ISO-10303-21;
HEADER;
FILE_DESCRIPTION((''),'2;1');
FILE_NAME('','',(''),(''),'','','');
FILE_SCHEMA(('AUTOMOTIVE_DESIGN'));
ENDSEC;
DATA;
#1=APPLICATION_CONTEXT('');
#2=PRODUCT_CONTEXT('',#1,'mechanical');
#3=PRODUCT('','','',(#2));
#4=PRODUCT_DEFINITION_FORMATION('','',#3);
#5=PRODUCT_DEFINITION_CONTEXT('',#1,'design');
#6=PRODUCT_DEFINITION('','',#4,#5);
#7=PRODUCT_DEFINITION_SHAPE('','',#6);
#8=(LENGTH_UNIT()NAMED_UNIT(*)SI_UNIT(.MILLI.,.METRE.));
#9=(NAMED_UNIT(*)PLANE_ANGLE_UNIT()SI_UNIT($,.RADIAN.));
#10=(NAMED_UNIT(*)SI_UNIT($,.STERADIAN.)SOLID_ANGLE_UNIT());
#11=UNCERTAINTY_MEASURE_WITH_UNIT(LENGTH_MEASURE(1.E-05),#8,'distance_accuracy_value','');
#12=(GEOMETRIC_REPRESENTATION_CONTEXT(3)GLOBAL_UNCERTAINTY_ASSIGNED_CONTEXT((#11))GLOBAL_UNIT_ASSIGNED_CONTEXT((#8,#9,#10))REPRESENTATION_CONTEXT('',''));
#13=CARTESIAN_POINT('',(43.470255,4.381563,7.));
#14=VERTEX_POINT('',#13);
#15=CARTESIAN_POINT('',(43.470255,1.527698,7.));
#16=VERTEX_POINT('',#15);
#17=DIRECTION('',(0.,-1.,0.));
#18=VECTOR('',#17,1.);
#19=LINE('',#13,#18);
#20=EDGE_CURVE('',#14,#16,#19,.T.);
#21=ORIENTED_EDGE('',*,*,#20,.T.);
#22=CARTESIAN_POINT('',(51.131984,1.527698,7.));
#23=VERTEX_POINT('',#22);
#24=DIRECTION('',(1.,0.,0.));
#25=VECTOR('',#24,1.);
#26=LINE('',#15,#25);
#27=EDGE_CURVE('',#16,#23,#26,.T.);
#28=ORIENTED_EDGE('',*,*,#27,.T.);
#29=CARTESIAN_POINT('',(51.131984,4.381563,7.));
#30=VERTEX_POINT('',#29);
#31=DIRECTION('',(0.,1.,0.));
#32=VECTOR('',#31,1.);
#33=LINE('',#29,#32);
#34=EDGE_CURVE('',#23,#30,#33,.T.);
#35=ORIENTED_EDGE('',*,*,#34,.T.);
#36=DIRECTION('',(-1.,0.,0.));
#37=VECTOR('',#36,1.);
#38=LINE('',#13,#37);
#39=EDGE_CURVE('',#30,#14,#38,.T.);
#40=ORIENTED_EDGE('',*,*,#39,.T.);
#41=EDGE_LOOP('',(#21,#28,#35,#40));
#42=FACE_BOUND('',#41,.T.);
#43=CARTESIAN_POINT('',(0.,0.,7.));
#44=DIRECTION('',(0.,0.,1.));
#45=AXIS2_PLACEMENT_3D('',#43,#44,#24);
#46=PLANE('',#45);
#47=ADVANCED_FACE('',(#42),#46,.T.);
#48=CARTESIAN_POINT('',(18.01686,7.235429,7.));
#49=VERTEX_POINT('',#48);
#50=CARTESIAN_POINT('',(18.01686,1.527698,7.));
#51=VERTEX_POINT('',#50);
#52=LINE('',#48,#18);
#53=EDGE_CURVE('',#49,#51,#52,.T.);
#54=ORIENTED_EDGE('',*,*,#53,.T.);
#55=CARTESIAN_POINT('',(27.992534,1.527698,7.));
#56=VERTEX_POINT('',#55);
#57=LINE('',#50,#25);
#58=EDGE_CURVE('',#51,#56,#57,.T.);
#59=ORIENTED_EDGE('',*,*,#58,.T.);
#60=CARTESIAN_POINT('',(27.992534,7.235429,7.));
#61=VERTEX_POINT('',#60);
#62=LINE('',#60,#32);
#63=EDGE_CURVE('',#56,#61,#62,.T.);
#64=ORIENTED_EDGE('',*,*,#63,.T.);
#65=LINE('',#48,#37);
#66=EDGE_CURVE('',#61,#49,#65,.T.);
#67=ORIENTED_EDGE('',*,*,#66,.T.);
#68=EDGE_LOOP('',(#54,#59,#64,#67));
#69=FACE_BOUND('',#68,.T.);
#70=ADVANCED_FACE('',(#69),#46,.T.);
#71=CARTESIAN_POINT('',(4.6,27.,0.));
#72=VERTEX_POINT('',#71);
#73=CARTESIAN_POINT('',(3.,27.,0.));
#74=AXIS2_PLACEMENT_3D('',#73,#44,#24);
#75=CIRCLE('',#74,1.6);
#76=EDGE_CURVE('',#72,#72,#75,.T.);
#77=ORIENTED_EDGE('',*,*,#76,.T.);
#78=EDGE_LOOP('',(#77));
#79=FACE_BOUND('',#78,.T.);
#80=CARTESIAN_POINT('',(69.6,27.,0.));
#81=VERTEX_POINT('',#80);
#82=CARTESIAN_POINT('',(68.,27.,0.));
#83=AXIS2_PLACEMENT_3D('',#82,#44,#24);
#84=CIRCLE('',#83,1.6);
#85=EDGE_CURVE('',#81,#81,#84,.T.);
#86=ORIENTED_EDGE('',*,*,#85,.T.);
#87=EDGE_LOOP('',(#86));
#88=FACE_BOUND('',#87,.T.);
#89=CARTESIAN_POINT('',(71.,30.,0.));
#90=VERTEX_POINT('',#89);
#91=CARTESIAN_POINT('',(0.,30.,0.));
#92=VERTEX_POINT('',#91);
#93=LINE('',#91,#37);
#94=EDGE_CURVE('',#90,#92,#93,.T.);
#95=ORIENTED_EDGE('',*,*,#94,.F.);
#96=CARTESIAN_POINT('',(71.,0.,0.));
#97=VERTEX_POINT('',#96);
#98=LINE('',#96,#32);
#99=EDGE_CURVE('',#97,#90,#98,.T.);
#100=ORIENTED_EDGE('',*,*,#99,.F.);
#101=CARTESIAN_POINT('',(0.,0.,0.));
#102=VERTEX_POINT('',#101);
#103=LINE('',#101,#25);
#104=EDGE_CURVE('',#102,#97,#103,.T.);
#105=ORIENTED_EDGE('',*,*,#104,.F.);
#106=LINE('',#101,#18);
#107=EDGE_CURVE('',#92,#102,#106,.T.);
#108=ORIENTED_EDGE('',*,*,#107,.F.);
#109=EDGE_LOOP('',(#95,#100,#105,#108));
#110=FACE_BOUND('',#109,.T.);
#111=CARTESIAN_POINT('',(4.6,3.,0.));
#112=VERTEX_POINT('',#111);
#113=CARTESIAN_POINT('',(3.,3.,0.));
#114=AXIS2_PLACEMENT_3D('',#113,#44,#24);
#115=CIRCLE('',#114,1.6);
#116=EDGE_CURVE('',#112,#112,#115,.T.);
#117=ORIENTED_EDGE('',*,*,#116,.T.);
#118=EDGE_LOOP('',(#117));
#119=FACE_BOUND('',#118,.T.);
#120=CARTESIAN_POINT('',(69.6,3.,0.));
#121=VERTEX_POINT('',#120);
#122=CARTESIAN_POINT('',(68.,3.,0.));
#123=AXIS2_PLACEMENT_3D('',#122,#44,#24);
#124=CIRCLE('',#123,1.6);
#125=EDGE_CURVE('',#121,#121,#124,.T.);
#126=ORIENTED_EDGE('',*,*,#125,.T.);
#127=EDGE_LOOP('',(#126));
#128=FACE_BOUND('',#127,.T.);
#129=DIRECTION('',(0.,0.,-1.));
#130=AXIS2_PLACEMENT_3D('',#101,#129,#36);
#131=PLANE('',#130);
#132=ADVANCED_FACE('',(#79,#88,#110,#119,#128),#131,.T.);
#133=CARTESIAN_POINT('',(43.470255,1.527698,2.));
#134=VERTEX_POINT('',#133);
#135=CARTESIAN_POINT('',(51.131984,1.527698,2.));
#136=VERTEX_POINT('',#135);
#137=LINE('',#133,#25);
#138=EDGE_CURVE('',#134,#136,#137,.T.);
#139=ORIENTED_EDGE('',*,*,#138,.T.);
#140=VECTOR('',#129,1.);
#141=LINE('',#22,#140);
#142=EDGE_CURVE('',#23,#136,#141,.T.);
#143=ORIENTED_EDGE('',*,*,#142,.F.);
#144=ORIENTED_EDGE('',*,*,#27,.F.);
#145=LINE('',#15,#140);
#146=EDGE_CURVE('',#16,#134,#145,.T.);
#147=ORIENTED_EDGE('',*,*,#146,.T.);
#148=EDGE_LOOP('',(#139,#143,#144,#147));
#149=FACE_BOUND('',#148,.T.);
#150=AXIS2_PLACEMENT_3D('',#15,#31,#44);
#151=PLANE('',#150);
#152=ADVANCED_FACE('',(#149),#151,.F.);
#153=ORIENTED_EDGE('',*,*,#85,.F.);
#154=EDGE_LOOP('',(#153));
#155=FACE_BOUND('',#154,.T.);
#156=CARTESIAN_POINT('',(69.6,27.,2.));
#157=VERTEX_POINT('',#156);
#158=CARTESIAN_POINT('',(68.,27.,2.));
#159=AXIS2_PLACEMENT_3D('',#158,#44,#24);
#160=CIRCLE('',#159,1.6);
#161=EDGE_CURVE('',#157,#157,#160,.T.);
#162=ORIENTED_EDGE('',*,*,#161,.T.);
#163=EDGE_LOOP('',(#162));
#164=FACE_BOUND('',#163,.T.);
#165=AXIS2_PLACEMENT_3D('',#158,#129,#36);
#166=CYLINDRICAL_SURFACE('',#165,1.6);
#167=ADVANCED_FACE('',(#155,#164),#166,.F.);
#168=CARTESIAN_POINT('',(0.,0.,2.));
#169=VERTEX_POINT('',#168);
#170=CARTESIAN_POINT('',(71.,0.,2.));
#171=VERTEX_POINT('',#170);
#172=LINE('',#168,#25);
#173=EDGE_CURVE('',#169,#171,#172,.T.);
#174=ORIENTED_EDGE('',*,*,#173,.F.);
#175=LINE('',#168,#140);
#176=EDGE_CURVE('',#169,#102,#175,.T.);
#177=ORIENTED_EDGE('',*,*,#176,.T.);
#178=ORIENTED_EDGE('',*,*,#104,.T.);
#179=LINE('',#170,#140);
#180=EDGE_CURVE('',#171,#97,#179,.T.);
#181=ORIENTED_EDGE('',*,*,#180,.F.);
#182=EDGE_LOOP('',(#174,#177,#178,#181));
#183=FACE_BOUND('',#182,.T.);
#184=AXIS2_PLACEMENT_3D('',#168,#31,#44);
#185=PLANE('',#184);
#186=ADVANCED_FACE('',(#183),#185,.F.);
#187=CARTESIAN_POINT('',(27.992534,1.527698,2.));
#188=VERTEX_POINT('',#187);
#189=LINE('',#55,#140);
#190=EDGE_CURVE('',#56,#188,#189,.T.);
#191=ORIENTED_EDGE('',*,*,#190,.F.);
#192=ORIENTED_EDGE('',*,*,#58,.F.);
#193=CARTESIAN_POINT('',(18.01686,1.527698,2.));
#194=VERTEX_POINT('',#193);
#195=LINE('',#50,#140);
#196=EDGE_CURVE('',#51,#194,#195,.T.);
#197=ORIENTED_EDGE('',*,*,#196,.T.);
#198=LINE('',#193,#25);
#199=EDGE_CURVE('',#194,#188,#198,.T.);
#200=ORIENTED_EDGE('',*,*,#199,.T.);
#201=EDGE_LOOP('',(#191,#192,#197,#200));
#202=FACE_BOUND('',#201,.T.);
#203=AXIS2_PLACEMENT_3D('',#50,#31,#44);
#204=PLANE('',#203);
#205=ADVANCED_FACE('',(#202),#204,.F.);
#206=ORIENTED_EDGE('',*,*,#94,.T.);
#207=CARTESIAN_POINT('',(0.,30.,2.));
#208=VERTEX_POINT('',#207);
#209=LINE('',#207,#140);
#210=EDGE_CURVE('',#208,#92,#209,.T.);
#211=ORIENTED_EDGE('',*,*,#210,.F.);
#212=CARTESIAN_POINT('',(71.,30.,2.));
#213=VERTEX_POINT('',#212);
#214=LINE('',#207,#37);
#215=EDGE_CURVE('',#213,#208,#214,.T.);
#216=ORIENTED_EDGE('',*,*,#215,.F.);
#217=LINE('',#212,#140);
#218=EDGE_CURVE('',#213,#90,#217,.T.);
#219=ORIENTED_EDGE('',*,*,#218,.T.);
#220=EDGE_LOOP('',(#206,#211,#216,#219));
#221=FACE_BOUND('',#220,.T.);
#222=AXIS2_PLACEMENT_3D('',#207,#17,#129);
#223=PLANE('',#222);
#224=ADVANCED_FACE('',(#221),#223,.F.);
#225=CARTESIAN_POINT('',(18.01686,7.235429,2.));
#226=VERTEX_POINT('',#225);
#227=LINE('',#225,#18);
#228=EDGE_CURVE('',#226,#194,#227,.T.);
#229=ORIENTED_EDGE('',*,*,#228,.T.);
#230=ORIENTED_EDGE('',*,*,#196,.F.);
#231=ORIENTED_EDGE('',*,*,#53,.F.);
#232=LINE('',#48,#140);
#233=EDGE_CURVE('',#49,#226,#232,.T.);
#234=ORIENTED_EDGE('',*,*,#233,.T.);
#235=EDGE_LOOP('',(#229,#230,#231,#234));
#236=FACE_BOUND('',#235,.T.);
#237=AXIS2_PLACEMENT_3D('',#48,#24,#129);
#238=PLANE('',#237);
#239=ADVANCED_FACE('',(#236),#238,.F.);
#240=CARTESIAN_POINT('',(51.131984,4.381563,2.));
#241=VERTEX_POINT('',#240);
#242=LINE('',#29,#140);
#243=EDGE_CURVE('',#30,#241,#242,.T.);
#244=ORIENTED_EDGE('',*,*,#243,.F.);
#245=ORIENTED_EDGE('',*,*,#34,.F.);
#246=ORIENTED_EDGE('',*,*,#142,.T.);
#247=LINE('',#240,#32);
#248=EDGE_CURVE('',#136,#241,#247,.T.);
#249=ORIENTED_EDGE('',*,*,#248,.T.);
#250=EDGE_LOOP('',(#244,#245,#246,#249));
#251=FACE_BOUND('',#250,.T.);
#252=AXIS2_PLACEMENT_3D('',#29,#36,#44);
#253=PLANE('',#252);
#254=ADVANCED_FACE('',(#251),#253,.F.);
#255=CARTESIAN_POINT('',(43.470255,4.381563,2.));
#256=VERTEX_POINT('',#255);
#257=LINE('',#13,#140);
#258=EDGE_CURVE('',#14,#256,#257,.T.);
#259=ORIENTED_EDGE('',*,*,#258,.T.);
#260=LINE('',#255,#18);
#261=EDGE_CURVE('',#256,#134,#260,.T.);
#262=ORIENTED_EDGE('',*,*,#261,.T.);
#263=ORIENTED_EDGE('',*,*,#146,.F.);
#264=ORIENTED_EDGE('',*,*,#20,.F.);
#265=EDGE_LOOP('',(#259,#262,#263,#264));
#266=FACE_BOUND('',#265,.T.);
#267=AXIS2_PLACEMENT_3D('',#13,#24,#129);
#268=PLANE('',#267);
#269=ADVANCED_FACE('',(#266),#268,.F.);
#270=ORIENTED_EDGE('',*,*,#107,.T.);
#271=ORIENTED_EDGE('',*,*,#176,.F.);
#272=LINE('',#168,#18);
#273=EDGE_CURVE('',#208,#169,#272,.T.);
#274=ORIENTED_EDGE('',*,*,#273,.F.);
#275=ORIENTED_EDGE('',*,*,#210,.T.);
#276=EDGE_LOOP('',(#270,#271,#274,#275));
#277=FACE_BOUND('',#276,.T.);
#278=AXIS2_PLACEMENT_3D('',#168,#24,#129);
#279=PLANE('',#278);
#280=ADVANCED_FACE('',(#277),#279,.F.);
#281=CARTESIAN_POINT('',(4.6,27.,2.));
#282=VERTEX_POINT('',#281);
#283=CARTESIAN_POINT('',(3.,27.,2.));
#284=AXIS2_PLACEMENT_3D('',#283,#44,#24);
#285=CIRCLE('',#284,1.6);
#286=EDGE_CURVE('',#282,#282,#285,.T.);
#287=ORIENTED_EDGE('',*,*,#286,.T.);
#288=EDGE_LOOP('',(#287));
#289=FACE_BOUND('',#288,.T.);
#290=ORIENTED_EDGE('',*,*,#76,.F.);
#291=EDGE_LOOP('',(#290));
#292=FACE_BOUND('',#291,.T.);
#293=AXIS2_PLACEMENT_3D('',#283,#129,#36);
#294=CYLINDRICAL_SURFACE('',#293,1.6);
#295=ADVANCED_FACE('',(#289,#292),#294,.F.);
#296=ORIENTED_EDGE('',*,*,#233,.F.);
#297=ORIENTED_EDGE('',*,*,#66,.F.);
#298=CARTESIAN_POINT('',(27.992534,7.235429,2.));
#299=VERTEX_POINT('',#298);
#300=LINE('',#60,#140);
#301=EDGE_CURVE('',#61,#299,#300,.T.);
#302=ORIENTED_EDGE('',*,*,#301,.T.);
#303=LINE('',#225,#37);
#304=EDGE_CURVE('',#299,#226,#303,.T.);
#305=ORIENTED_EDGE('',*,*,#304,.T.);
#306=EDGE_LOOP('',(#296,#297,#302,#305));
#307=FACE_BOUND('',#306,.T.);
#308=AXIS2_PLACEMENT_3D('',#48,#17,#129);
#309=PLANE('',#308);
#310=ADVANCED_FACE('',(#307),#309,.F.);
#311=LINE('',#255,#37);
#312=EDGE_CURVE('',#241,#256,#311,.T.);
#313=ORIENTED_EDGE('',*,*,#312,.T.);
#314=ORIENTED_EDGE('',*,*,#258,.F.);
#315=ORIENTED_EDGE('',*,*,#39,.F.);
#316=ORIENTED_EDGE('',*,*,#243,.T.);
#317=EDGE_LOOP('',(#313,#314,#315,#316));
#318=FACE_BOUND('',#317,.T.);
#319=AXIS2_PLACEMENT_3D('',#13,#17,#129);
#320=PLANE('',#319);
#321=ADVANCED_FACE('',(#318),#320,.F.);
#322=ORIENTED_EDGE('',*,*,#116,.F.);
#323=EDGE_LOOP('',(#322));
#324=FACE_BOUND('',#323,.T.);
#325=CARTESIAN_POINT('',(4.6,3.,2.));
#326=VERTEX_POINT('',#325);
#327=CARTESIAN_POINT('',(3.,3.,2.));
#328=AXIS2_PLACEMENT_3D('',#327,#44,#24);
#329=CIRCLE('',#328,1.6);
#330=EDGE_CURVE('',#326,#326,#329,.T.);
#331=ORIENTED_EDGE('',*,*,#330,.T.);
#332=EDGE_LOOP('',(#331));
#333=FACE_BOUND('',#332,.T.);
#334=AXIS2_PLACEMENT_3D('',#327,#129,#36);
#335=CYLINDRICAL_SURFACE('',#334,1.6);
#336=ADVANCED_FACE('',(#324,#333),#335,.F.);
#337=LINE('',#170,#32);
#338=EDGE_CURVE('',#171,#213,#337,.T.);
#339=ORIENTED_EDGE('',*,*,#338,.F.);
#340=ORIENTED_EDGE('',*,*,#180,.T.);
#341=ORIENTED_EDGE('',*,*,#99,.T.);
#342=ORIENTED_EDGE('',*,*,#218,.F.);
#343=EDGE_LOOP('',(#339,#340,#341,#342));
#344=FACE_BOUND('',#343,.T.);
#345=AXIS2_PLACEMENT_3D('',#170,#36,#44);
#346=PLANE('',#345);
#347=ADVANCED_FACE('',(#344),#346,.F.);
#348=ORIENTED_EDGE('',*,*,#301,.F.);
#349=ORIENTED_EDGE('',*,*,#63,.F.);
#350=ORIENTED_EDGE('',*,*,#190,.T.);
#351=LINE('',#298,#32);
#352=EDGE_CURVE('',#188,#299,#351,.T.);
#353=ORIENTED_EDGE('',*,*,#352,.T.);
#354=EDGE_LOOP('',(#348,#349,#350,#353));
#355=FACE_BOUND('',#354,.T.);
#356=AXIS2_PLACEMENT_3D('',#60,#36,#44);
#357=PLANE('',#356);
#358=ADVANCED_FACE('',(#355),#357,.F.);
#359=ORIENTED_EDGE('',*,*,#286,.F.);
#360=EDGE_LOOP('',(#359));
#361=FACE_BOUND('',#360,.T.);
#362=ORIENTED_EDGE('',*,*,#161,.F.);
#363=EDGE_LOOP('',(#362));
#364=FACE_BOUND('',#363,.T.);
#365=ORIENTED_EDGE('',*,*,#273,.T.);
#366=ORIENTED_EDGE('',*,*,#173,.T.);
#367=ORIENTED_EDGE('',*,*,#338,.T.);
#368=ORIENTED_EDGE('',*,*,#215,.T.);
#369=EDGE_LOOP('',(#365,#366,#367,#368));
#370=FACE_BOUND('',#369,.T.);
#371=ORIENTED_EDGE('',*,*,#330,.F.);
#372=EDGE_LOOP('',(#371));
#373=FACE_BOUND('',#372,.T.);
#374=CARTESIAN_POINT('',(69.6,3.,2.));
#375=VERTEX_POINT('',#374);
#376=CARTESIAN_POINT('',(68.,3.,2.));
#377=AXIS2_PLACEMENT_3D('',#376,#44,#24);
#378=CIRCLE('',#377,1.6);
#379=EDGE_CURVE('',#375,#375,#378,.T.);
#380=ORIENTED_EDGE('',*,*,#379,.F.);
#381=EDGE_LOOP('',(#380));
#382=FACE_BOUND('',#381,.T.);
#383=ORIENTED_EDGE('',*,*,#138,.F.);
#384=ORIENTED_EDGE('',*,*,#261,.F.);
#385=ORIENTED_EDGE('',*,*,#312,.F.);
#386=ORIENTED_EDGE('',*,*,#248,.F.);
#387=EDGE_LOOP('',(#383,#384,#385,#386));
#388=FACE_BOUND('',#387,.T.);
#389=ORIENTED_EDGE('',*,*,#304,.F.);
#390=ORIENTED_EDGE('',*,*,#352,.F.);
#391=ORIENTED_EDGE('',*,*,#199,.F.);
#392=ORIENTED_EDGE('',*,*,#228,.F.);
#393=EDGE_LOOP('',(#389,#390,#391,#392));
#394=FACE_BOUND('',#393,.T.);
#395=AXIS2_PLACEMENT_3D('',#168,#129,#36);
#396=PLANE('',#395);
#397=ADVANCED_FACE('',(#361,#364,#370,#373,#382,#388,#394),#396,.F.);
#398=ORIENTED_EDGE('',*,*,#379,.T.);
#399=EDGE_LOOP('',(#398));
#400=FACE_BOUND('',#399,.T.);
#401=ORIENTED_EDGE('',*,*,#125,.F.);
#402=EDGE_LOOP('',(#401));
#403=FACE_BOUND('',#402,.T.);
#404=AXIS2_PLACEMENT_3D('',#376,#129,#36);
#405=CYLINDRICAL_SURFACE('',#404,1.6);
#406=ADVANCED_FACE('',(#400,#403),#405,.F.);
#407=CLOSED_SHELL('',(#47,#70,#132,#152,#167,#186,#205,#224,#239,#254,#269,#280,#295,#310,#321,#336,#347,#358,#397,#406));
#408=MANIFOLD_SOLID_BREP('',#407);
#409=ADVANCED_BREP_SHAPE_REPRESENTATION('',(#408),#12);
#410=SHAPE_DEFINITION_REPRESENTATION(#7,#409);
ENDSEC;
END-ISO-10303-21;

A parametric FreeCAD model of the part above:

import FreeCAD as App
import Part
import Sketcher

V = App.Vector

doc = App.newDocument("Part")
params = doc.addObject("Spreadsheet::Sheet", "Params")
for row, (alias, value) in enumerate([
    ("sketch1_diameter", "3.2 mm"),
    ("sketch1_width", "71 mm"),
    ("sketch1_height", "30 mm"),
    ("pad1_length", "2 mm"),
    ("pad2_length", "5 mm"),
], start=1):
    params.set(f"A{row}", alias)
    params.set(f"B{row}", "=" + value)
    params.setAlias(f"B{row}", alias)

body = doc.addObject("PartDesign::Body", "Body")

sketch1 = doc.addObject("Sketcher::SketchObject", "Sketch")
body.addObject(sketch1)
sketch1.AttachmentSupport = (doc.XY_Plane, [""])
sketch1.MapMode = "FlatFace"
sketch1.addGeometry(Part.LineSegment(V(0, 30, 0), V(0, 0, 0)), False)
sketch1.addGeometry(Part.LineSegment(V(0, 0, 0), V(71, 0, 0)), False)
sketch1.addGeometry(Part.LineSegment(V(71, 0, 0), V(71, 30, 0)), False)
sketch1.addGeometry(Part.LineSegment(V(71, 30, 0), V(0, 30, 0)), False)
sketch1.addGeometry(Part.Circle(V(3, 3, 0), V(0, 0, 1), 1.6), False)
sketch1.addGeometry(Part.Circle(V(68, 3, 0), V(0, 0, 1), 1.6), False)
sketch1.addGeometry(Part.Circle(V(3, 27, 0), V(0, 0, 1), 1.6), False)
sketch1.addGeometry(Part.Circle(V(68, 27, 0), V(0, 0, 1), 1.6), False)
sketch1.addConstraint(Sketcher.Constraint("Coincident", 0, 2, 1, 1))
sketch1.addConstraint(Sketcher.Constraint("Coincident", 1, 2, 2, 1))
sketch1.addConstraint(Sketcher.Constraint("Coincident", 2, 2, 3, 1))
sketch1.addConstraint(Sketcher.Constraint("Coincident", 3, 2, 0, 1))
sketch1.addConstraint(Sketcher.Constraint("Vertical", 0))
sketch1.addConstraint(Sketcher.Constraint("Horizontal", 1))
sketch1.addConstraint(Sketcher.Constraint("Vertical", 2))
sketch1.addConstraint(Sketcher.Constraint("Horizontal", 3))
sketch1.addConstraint(Sketcher.Constraint("Coincident", 0, 2, -1, 1))
sketch1.addConstraint(Sketcher.Constraint("Equal", 4, 5))
sketch1.addConstraint(Sketcher.Constraint("Equal", 5, 6))
sketch1.addConstraint(Sketcher.Constraint("Equal", 6, 7))
sketch1.addConstraint(Sketcher.Constraint("Horizontal", 4, 3, 5, 3))
sketch1.addConstraint(Sketcher.Constraint("Horizontal", 6, 3, 7, 3))
sketch1.addConstraint(Sketcher.Constraint("Vertical", 4, 3, 6, 3))
sketch1.addConstraint(Sketcher.Constraint("Vertical", 5, 3, 7, 3))
sketch1.addConstraint(Sketcher.Constraint("Diameter", 4, 3.2))
sketch1.addConstraint(Sketcher.Constraint("DistanceX", 1, 1, 1, 2, 71.0))
sketch1.addConstraint(Sketcher.Constraint("DistanceY", 0, 2, 0, 1, 30.0))
sketch1.addConstraint(Sketcher.Constraint("DistanceX", -1, 1, 4, 3, 3.0))
sketch1.addConstraint(Sketcher.Constraint("DistanceY", -1, 1, 4, 3, 3.0))
sketch1.addConstraint(Sketcher.Constraint("DistanceX", -1, 1, 5, 3, 68.0))
sketch1.addConstraint(Sketcher.Constraint("DistanceY", -1, 1, 6, 3, 27.0))
sketch1.setExpression("Constraints[16]", "Params.sketch1_diameter")
sketch1.setExpression("Constraints[17]", "Params.sketch1_width")
sketch1.setExpression("Constraints[18]", "Params.sketch1_height")
pad1 = doc.addObject("PartDesign::Pad", "Pad")
body.addObject(pad1)
pad1.Profile = sketch1
pad1.setExpression("Length", "Params.pad1_length")

sketch2 = doc.addObject("Sketcher::SketchObject", "Sketch001")
body.addObject(sketch2)
sketch2.AttachmentSupport = (doc.XY_Plane, [""])
sketch2.MapMode = "FlatFace"
sketch2.AttachmentOffset = App.Placement(V(0, 0, 2), App.Rotation())
sketch2.addGeometry(Part.LineSegment(V(18.01686, 7.235429, 0), V(18.01686, 1.527698, 0)), False)
sketch2.addGeometry(Part.LineSegment(V(18.01686, 1.527698, 0), V(27.992534, 1.527698, 0)), False)
sketch2.addGeometry(Part.LineSegment(V(27.992534, 1.527698, 0), V(27.992534, 7.235429, 0)), False)
sketch2.addGeometry(Part.LineSegment(V(27.992534, 7.235429, 0), V(18.01686, 7.235429, 0)), False)
sketch2.addGeometry(Part.LineSegment(V(43.470255, 4.381563, 0), V(43.470255, 1.527698, 0)), False)
sketch2.addGeometry(Part.LineSegment(V(43.470255, 1.527698, 0), V(51.131984, 1.527698, 0)), False)
sketch2.addGeometry(Part.LineSegment(V(51.131984, 1.527698, 0), V(51.131984, 4.381563, 0)), False)
sketch2.addGeometry(Part.LineSegment(V(51.131984, 4.381563, 0), V(43.470255, 4.381563, 0)), False)
sketch2.addConstraint(Sketcher.Constraint("Coincident", 0, 2, 1, 1))
sketch2.addConstraint(Sketcher.Constraint("Coincident", 1, 2, 2, 1))
sketch2.addConstraint(Sketcher.Constraint("Coincident", 2, 2, 3, 1))
sketch2.addConstraint(Sketcher.Constraint("Coincident", 3, 2, 0, 1))
sketch2.addConstraint(Sketcher.Constraint("Coincident", 4, 2, 5, 1))
sketch2.addConstraint(Sketcher.Constraint("Coincident", 5, 2, 6, 1))
sketch2.addConstraint(Sketcher.Constraint("Coincident", 6, 2, 7, 1))
sketch2.addConstraint(Sketcher.Constraint("Coincident", 7, 2, 4, 1))
sketch2.addConstraint(Sketcher.Constraint("Vertical", 0))
sketch2.addConstraint(Sketcher.Constraint("Horizontal", 1))
sketch2.addConstraint(Sketcher.Constraint("Vertical", 2))
sketch2.addConstraint(Sketcher.Constraint("Horizontal", 3))
sketch2.addConstraint(Sketcher.Constraint("Vertical", 4))
sketch2.addConstraint(Sketcher.Constraint("Horizontal", 5))
sketch2.addConstraint(Sketcher.Constraint("Vertical", 6))
sketch2.addConstraint(Sketcher.Constraint("Horizontal", 7))
sketch2.addConstraint(Sketcher.Constraint("Horizontal", 1, 2, 4, 2))
sketch2.addConstraint(Sketcher.Constraint("DistanceX", 5, 1, 5, 2, 7.661729))
sketch2.addConstraint(Sketcher.Constraint("DistanceY", 0, 2, 0, 1, 5.707731))
sketch2.addConstraint(Sketcher.Constraint("DistanceX", 1, 1, 1, 2, 9.975674))
sketch2.addConstraint(Sketcher.Constraint("DistanceY", 4, 2, 4, 1, 2.853866))
sketch2.addConstraint(Sketcher.Constraint("DistanceX", -1, 1, 0, 2, 18.01686))
sketch2.addConstraint(Sketcher.Constraint("DistanceY", -1, 1, 2, 2, 7.235429))
sketch2.addConstraint(Sketcher.Constraint("DistanceX", 1, 2, 4, 2, 15.477721))
pad2 = doc.addObject("PartDesign::Pad", "Pad001")
body.addObject(pad2)
pad2.Profile = sketch2
pad2.setExpression("Length", "Params.pad2_length")

doc.recompute()
